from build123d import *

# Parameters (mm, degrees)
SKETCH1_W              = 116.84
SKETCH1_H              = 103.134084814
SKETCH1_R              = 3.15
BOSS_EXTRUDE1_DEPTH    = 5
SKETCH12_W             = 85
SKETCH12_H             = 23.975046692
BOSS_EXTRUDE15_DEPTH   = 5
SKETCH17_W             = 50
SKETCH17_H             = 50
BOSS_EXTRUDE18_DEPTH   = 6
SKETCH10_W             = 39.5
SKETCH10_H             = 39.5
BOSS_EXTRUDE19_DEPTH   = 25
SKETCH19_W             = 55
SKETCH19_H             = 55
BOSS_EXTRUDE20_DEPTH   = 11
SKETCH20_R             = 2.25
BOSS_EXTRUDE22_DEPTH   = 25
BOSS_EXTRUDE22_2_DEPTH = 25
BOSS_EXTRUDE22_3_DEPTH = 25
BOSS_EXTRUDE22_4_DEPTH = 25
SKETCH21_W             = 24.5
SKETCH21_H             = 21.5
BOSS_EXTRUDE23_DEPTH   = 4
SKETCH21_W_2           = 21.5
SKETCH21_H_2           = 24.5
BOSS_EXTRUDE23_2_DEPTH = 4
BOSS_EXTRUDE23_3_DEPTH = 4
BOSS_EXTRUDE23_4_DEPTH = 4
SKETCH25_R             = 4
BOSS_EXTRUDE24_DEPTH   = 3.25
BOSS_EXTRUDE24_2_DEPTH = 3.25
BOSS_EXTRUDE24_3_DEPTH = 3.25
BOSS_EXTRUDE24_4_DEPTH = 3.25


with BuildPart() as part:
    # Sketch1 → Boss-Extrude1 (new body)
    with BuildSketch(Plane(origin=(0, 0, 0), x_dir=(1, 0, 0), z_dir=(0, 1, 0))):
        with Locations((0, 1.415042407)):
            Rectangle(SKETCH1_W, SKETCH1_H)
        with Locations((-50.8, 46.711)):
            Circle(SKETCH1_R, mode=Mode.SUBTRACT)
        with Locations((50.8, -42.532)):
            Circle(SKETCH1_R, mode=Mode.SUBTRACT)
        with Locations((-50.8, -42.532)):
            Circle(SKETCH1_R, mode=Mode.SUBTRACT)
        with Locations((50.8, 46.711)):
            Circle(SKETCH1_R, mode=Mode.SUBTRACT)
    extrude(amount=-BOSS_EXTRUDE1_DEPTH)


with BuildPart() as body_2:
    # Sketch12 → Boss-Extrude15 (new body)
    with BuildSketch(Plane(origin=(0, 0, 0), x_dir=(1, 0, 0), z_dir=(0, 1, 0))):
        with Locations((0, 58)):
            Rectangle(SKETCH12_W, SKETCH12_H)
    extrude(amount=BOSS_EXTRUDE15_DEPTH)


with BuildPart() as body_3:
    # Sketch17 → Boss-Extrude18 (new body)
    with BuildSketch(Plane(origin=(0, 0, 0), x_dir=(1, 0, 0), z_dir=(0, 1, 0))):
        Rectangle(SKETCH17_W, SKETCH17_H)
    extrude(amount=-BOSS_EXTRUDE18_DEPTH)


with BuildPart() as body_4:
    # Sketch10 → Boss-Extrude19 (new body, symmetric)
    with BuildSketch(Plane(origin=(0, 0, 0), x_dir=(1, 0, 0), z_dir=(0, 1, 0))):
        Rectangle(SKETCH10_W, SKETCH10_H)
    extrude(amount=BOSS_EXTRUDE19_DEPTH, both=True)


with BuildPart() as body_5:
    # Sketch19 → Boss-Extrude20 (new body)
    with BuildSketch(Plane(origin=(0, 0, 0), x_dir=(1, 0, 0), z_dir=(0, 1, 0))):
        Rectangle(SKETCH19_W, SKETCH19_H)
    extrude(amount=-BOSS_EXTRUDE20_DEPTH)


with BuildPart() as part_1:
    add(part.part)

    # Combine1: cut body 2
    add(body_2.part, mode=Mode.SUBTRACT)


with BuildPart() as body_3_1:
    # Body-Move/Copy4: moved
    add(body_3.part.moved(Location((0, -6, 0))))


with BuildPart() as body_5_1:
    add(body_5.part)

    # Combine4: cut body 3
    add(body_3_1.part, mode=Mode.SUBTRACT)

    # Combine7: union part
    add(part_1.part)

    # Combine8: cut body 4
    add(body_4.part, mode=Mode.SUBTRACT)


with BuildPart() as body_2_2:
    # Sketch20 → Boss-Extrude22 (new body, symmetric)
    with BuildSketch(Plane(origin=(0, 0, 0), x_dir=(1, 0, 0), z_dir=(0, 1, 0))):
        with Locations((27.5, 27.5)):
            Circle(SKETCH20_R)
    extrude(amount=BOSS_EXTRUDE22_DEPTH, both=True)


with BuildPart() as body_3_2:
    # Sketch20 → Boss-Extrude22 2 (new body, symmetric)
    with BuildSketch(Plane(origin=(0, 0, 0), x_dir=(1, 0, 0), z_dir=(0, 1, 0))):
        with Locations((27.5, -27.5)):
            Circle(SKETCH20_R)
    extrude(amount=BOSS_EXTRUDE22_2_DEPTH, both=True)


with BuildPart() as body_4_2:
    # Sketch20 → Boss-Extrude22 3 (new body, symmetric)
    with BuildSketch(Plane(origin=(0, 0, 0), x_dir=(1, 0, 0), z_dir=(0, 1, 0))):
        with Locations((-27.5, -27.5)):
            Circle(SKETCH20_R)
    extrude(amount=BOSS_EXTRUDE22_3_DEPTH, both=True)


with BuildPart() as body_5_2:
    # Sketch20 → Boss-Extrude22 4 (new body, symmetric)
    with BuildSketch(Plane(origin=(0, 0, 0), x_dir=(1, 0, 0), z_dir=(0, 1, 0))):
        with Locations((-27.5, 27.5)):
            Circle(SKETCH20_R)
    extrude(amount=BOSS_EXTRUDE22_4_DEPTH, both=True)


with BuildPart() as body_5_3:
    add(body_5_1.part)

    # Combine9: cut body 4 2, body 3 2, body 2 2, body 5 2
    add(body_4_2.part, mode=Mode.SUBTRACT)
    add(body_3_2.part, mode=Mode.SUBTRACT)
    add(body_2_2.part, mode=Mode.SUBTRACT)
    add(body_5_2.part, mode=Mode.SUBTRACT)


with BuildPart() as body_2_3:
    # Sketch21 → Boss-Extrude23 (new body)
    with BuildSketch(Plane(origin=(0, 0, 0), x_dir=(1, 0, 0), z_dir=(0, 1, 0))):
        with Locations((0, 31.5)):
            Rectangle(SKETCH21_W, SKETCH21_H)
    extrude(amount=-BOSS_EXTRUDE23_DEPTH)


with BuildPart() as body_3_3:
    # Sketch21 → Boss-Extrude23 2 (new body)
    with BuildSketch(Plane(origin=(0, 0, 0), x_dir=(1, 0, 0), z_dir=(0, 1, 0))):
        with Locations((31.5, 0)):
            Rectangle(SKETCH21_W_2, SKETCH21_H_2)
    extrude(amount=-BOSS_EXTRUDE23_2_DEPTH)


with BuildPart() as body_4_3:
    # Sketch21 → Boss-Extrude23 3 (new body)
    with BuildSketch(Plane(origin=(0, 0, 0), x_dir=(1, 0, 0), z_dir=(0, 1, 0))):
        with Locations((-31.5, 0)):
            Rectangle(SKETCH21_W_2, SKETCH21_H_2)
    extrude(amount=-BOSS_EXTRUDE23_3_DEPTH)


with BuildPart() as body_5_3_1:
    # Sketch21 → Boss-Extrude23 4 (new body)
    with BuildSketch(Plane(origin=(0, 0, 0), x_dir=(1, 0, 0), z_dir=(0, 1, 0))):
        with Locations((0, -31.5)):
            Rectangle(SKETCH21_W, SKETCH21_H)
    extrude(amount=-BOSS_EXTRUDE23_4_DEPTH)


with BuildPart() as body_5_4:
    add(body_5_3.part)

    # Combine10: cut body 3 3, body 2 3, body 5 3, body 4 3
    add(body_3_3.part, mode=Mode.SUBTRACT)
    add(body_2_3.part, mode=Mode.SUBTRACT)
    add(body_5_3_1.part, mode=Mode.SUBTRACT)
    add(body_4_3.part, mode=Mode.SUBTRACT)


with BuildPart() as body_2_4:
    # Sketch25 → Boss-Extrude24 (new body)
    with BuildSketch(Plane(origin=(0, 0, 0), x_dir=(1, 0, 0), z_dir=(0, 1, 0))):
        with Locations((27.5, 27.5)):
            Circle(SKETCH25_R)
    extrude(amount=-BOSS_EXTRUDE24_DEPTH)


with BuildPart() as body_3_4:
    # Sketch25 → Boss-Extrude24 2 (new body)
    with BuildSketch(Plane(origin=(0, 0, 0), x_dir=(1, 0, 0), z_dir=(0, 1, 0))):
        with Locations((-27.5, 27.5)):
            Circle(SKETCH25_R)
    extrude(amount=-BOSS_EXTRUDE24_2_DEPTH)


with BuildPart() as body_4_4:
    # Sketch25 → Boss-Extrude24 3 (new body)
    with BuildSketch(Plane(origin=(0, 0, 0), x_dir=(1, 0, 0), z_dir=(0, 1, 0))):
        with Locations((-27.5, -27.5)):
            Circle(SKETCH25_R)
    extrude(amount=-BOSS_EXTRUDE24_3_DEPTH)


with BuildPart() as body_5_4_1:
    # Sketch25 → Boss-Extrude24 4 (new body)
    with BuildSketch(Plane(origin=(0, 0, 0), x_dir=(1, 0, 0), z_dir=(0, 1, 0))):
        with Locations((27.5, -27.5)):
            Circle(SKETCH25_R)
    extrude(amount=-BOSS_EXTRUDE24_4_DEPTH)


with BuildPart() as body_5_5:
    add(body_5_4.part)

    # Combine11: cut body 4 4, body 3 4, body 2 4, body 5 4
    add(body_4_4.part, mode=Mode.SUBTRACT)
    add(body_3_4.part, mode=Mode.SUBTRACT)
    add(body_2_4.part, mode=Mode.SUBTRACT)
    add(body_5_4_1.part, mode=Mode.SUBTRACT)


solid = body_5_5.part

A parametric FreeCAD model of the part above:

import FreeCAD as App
import Part
import Sketcher
from FreeCAD import Vector


def add_polygon(sketch, points):
    """Adds a closed chain of lines whose ends are joined by coincident constraints."""
    first, n = sketch.GeometryCount, len(points)
    for a, b in zip(points, points[1:] + points[:1]):
        sketch.addGeometry(Part.LineSegment(App.Vector(*a, 0), App.Vector(*b, 0)), False)
    for i in range(n):
        sketch.addConstraint(Sketcher.Constraint("Coincident", first + i, 2, first + (i + 1) % n, 1))

doc = App.newDocument("Part")
body = doc.addObject("PartDesign::Body", "Body")

# Sketch on XZ plane
sketch1 = body.newObject("Sketcher::SketchObject", "Sketch")
sketch1.AttachmentSupport = (doc.getObject("XZ_Plane"), [""])
sketch1.MapMode = "FlatFace"
add_polygon(sketch1, [(-58.4, -53), (-58.4, 50.2), (58.4, 50.2), (58.4, -53)])  # lines 0-3
sketch1.addGeometry(Part.Circle(Vector(-50.8, 42.5, 0), Vector(0, 0, 1), 3.1), False)  # 4
sketch1.addGeometry(Part.Circle(Vector(50.8, 42.5, 0), Vector(0, 0, 1), 3.1), False)  # 5
sketch1.addGeometry(Part.Circle(Vector(-50.8, -46.7, 0), Vector(0, 0, 1), 3.1), False)  # 6
sketch1.addGeometry(Part.Circle(Vector(50.8, -46.7, 0), Vector(0, 0, 1), 3.1), False)  # 7
sketch1.addConstraint(Sketcher.Constraint("Vertical", 0))
sketch1.addConstraint(Sketcher.Constraint("Horizontal", 1))
sketch1.addConstraint(Sketcher.Constraint("Vertical", 2))
sketch1.addConstraint(Sketcher.Constraint("Horizontal", 3))
sketch1.addConstraint(Sketcher.Constraint("Equal", 4, 5))
sketch1.addConstraint(Sketcher.Constraint("Equal", 5, 6))
sketch1.addConstraint(Sketcher.Constraint("Equal", 6, 7))
sketch1.addConstraint(Sketcher.Constraint("Symmetric", 4, 3, 5, 3, -2))
sketch1.addConstraint(Sketcher.Constraint("Symmetric", 6, 3, 7, 3, -2))
sketch1.addConstraint(Sketcher.Constraint("Vertical", 4, 3, 6, 3))
sketch1.addConstraint(Sketcher.Constraint("Diameter", 4, 6.3))
sketch1.addConstraint(Sketcher.Constraint("DistanceX", 1, 1, 1, 2, 116.84))
sketch1.addConstraint(Sketcher.Constraint("DistanceX", 4, 3, -1, 1, 50.8))
sketch1.addConstraint(Sketcher.Constraint("DistanceX", 0, 2, -1, 1, 58.42))
sketch1.addConstraint(Sketcher.Constraint("DistanceY", 4, 3, 0, 2, 7.62))
sketch1.addConstraint(Sketcher.Constraint("DistanceY", -1, 1, 4, 3, 42.532))
sketch1.addConstraint(Sketcher.Constraint("DistanceY", 6, 3, -1, 1, 46.711))
sketch1.addConstraint(Sketcher.Constraint("DistanceY", 0, 1, 0, 2, 103.134085))
pad1 = body.newObject("PartDesign::Pad", "Pad")
pad1.Profile = sketch1
pad1.Length = 5
body2 = doc.addObject("PartDesign::Body", "Body001")

# Sketch on XZ plane
sketch2 = body2.newObject("Sketcher::SketchObject", "Sketch001")
sketch2.AttachmentSupport = (doc.getObject("XZ_Plane001"), [""])
sketch2.MapMode = "FlatFace"
add_polygon(sketch2, [(-42, -70), (-42, -46), (42, -46), (42, -70)])  # lines 0-3
sketch2.addConstraint(Sketcher.Constraint("Vertical", 0))
sketch2.addConstraint(Sketcher.Constraint("Horizontal", 1))
sketch2.addConstraint(Sketcher.Constraint("Vertical", 2))
sketch2.addConstraint(Sketcher.Constraint("Horizontal", 3))
sketch2.addConstraint(Sketcher.Constraint("DistanceX", 1, 1, 1, 2, 85.0))
sketch2.addConstraint(Sketcher.Constraint("DistanceX", 0, 2, -1, 1, 42.5))
sketch2.addConstraint(Sketcher.Constraint("DistanceY", 0, 1, 0, 2, 23.975047))
sketch2.addConstraint(Sketcher.Constraint("DistanceY", 0, 2, -1, 1, 46.012477))
pad2 = body2.newObject("PartDesign::Pad", "Pad001")
pad2.Profile = sketch2
pad2.Length = 5
pad2.Reversed = True
body3 = doc.addObject("PartDesign::Body", "Body002")

# Sketch on XZ plane
sketch3 = body3.newObject("Sketcher::SketchObject", "Sketch002")
sketch3.AttachmentSupport = (doc.getObject("XZ_Plane002"), [""])
sketch3.MapMode = "FlatFace"
add_polygon(sketch3, [(-25, -25), (-25, 25), (25, 25), (25, -25)])  # lines 0-3
sketch3.addConstraint(Sketcher.Constraint("Vertical", 0))
sketch3.addConstraint(Sketcher.Constraint("Horizontal", 1))
sketch3.addConstraint(Sketcher.Constraint("Vertical", 2))
sketch3.addConstraint(Sketcher.Constraint("Horizontal", 3))
sketch3.addConstraint(Sketcher.Constraint("Symmetric", 0, 2, 2, 2, -1, 1))
sketch3.addConstraint(Sketcher.Constraint("Equal", 3, 0))
sketch3.addConstraint(Sketcher.Constraint("DistanceX", 1, 1, 1, 2, 50.0))
pad3 = body3.newObject("PartDesign::Pad", "Pad002")
pad3.Profile = sketch3
pad3.Length = 6
body4 = doc.addObject("PartDesign::Body", "Body003")

# Sketch on XZ plane
sketch4 = body4.newObject("Sketcher::SketchObject", "Sketch003")
sketch4.AttachmentSupport = (doc.getObject("XZ_Plane003"), [""])
sketch4.MapMode = "FlatFace"
add_polygon(sketch4, [(-20, -20), (-20, 20), (20, 20), (20, -20)])  # lines 0-3
sketch4.addConstraint(Sketcher.Constraint("Vertical", 0))
sketch4.addConstraint(Sketcher.Constraint("Horizontal", 1))
sketch4.addConstraint(Sketcher.Constraint("Vertical", 2))
sketch4.addConstraint(Sketcher.Constraint("Horizontal", 3))
sketch4.addConstraint(Sketcher.Constraint("Symmetric", 0, 2, 2, 2, -1, 1))
sketch4.addConstraint(Sketcher.Constraint("Equal", 3, 0))
sketch4.addConstraint(Sketcher.Constraint("DistanceX", 1, 1, 1, 2, 39.5))
pad4 = body4.newObject("PartDesign::Pad", "Pad003")
pad4.Profile = sketch4
pad4.Length = 50
pad4.Midplane = True
body5 = doc.addObject("PartDesign::Body", "Body004")

# Sketch on XZ plane
sketch5 = body5.newObject("Sketcher::SketchObject", "Sketch004")
sketch5.AttachmentSupport = (doc.getObject("XZ_Plane004"), [""])
sketch5.MapMode = "FlatFace"
add_polygon(sketch5, [(-28, -28), (-28, 28), (28, 28), (28, -28)])  # lines 0-3
sketch5.addConstraint(Sketcher.Constraint("Vertical", 0))
sketch5.addConstraint(Sketcher.Constraint("Horizontal", 1))
sketch5.addConstraint(Sketcher.Constraint("Vertical", 2))
sketch5.addConstraint(Sketcher.Constraint("Horizontal", 3))
sketch5.addConstraint(Sketcher.Constraint("Symmetric", 0, 2, 2, 2, -1, 1))
sketch5.addConstraint(Sketcher.Constraint("Equal", 3, 0))
sketch5.addConstraint(Sketcher.Constraint("DistanceX", 1, 1, 1, 2, 55.0))
pad5 = body5.newObject("PartDesign::Pad", "Pad004")
pad5.Profile = sketch5
pad5.Length = 11
doc.recompute()

boolean = body.newObject("PartDesign::Boolean", "Boolean")
boolean.Type = "Cut"
boolean.addObjects([body2])
body6 = doc.addObject("PartDesign::Body", "Body005")
doc.recompute()

body3.Placement = App.Placement(Vector(0, -6, 0), App.Rotation(Vector(0, 0, 1), 0))
boolean2 = body6.newObject("PartDesign::Boolean", "Boolean001")
boolean2.Type = "Fuse"
boolean2.addObjects([body3])
doc.recompute()

boolean3 = body5.newObject("PartDesign::Boolean", "Boolean002")
boolean3.Type = "Cut"
boolean3.addObjects([body6])
doc.recompute()

boolean4 = body5.newObject("PartDesign::Boolean", "Boolean003")
boolean4.Type = "Fuse"
boolean4.addObjects([body])
doc.recompute()

boolean5 = body5.newObject("PartDesign::Boolean", "Boolean004")
boolean5.Type = "Cut"
boolean5.addObjects([body4])
body7 = doc.addObject("PartDesign::Body", "Body006")

# Sketch on XZ plane
sketch6 = body7.newObject("Sketcher::SketchObject", "Sketch005")
sketch6.AttachmentSupport = (doc.getObject("XZ_Plane006"), [""])
sketch6.MapMode = "FlatFace"
sketch6.addGeometry(Part.Circle(Vector(27.5, -27.5, 0), Vector(0, 0, 1), 2.2), False)
sketch6.addConstraint(Sketcher.Constraint("Diameter", 0, 4.5))
sketch6.addConstraint(Sketcher.Constraint("DistanceX", -1, 1, 0, 3, 27.5))
sketch6.addConstraint(Sketcher.Constraint("DistanceY", 0, 3, -1, 1, 27.5))
pad6 = body7.newObject("PartDesign::Pad", "Pad005")
pad6.Profile = sketch6
pad6.Length = 50
pad6.Midplane = True
body8 = doc.addObject("PartDesign::Body", "Body007")

# Sketch on XZ plane
sketch7 = body8.newObject("Sketcher::SketchObject", "Sketch006")
sketch7.AttachmentSupport = (doc.getObject("XZ_Plane007"), [""])
sketch7.MapMode = "FlatFace"
sketch7.addGeometry(Part.Circle(Vector(27.5, 27.5, 0), Vector(0, 0, 1), 2.2), False)
sketch7.addConstraint(Sketcher.Constraint("Diameter", 0, 4.5))
sketch7.addConstraint(Sketcher.Constraint("DistanceX", -1, 1, 0, 3, 27.5))
sketch7.addConstraint(Sketcher.Constraint("DistanceY", -1, 1, 0, 3, 27.5))
pad7 = body8.newObject("PartDesign::Pad", "Pad006")
pad7.Profile = sketch7
pad7.Length = 50
pad7.Midplane = True
body9 = doc.addObject("PartDesign::Body", "Body008")

# Sketch on XZ plane
sketch8 = body9.newObject("Sketcher::SketchObject", "Sketch007")
sketch8.AttachmentSupport = (doc.getObject("XZ_Plane008"), [""])
sketch8.MapMode = "FlatFace"
sketch8.addGeometry(Part.Circle(Vector(-27.5, 27.5, 0), Vector(0, 0, 1), 2.2), False)
sketch8.addConstraint(Sketcher.Constraint("Diameter", 0, 4.5))
sketch8.addConstraint(Sketcher.Constraint("DistanceX", 0, 3, -1, 1, 27.5))
sketch8.addConstraint(Sketcher.Constraint("DistanceY", -1, 1, 0, 3, 27.5))
pad8 = body9.newObject("PartDesign::Pad", "Pad007")
pad8.Profile = sketch8
pad8.Length = 50
pad8.Midplane = True
body10 = doc.addObject("PartDesign::Body", "Body009")

# Sketch on XZ plane
sketch9 = body10.newObject("Sketcher::SketchObject", "Sketch008")
sketch9.AttachmentSupport = (doc.getObject("XZ_Plane009"), [""])
sketch9.MapMode = "FlatFace"
sketch9.addGeometry(Part.Circle(Vector(-27.5, -27.5, 0), Vector(0, 0, 1), 2.2), False)
sketch9.addConstraint(Sketcher.Constraint("Diameter", 0, 4.5))
sketch9.addConstraint(Sketcher.Constraint("DistanceX", 0, 3, -1, 1, 27.5))
sketch9.addConstraint(Sketcher.Constraint("DistanceY", 0, 3, -1, 1, 27.5))
pad9 = body10.newObject("PartDesign::Pad", "Pad008")
pad9.Profile = sketch9
pad9.Length = 50
pad9.Midplane = True
doc.recompute()

boolean6 = body5.newObject("PartDesign::Boolean", "Boolean005")
boolean6.Type = "Cut"
boolean6.addObjects([body9])
doc.recompute()

boolean7 = body5.newObject("PartDesign::Boolean", "Boolean006")
boolean7.Type = "Cut"
boolean7.addObjects([body8])
doc.recompute()

boolean8 = body5.newObject("PartDesign::Boolean", "Boolean007")
boolean8.Type = "Cut"
boolean8.addObjects([body7])
doc.recompute()

boolean9 = body5.newObject("PartDesign::Boolean", "Boolean008")
boolean9.Type = "Cut"
boolean9.addObjects([body10])
body11 = doc.addObject("PartDesign::Body", "Body010")

# Sketch on XZ plane
sketch10 = body11.newObject("Sketcher::SketchObject", "Sketch009")
sketch10.AttachmentSupport = (doc.getObject("XZ_Plane010"), [""])
sketch10.MapMode = "FlatFace"
add_polygon(sketch10, [(-12, -42), (-12, -21), (12, -21), (12, -42)])  # lines 0-3
sketch10.addConstraint(Sketcher.Constraint("Vertical", 0))
sketch10.addConstraint(Sketcher.Constraint("Horizontal", 1))
sketch10.addConstraint(Sketcher.Constraint("Vertical", 2))
sketch10.addConstraint(Sketcher.Constraint("Horizontal", 3))
sketch10.addConstraint(Sketcher.Constraint("DistanceX", 1, 1, 1, 2, 24.5))
sketch10.addConstraint(Sketcher.Constraint("DistanceY", 0, 1, 0, 2, 21.5))
sketch10.addConstraint(Sketcher.Constraint("DistanceX", 0, 2, -1, 1, 12.25))
sketch10.addConstraint(Sketcher.Constraint("DistanceY", 0, 2, -1, 1, 20.75))
pad10 = body11.newObject("PartDesign::Pad", "Pad009")
pad10.Profile = sketch10
pad10.Length = 4
body12 = doc.addObject("PartDesign::Body", "Body011")

# Sketch on XZ plane
sketch11 = body12.newObject("Sketcher::SketchObject", "Sketch010")
sketch11.AttachmentSupport = (doc.getObject("XZ_Plane011"), [""])
sketch11.MapMode = "FlatFace"
add_polygon(sketch11, [(21, -12), (21, 12), (42, 12), (42, -12)])  # lines 0-3
sketch11.addConstraint(Sketcher.Constraint("Vertical", 0))
sketch11.addConstraint(Sketcher.Constraint("Horizontal", 1))
sketch11.addConstraint(Sketcher.Constraint("Vertical", 2))
sketch11.addConstraint(Sketcher.Constraint("Horizontal", 3))
sketch11.addConstraint(Sketcher.Constraint("DistanceX", 1, 1, 1, 2, 21.5))
sketch11.addConstraint(Sketcher.Constraint("DistanceY", 0, 1, 0, 2, 24.5))
sketch11.addConstraint(Sketcher.Constraint("DistanceX", -1, 1, 0, 2, 20.75))
sketch11.addConstraint(Sketcher.Constraint("DistanceY", -1, 1, 0, 2, 12.25))
pad11 = body12.newObject("PartDesign::Pad", "Pad010")
pad11.Profile = sketch11
pad11.Length = 4
body13 = doc.addObject("PartDesign::Body", "Body012")

# Sketch on XZ plane
sketch12 = body13.newObject("Sketcher::SketchObject", "Sketch011")
sketch12.AttachmentSupport = (doc.getObject("XZ_Plane012"), [""])
sketch12.MapMode = "FlatFace"
add_polygon(sketch12, [(-42, -12), (-42, 12), (-21, 12), (-21, -12)])  # lines 0-3
sketch12.addConstraint(Sketcher.Constraint("Vertical", 0))
sketch12.addConstraint(Sketcher.Constraint("Horizontal", 1))
sketch12.addConstraint(Sketcher.Constraint("Vertical", 2))
sketch12.addConstraint(Sketcher.Constraint("Horizontal", 3))
sketch12.addConstraint(Sketcher.Constraint("DistanceX", 1, 1, 1, 2, 21.5))
sketch12.addConstraint(Sketcher.Constraint("DistanceY", 0, 1, 0, 2, 24.5))
sketch12.addConstraint(Sketcher.Constraint("DistanceX", 0, 2, -1, 1, 42.25))
sketch12.addConstraint(Sketcher.Constraint("DistanceY", -1, 1, 0, 2, 12.25))
pad12 = body13.newObject("PartDesign::Pad", "Pad011")
pad12.Profile = sketch12
pad12.Length = 4
body14 = doc.addObject("PartDesign::Body", "Body013")

# Sketch on XZ plane
sketch13 = body14.newObject("Sketcher::SketchObject", "Sketch012")
sketch13.AttachmentSupport = (doc.getObject("XZ_Plane013"), [""])
sketch13.MapMode = "FlatFace"
add_polygon(sketch13, [(-12, 21), (-12, 42), (12, 42), (12, 21)])  # lines 0-3
sketch13.addConstraint(Sketcher.Constraint("Vertical", 0))
sketch13.addConstraint(Sketcher.Constraint("Horizontal", 1))
sketch13.addConstraint(Sketcher.Constraint("Vertical", 2))
sketch13.addConstraint(Sketcher.Constraint("Horizontal", 3))
sketch13.addConstraint(Sketcher.Constraint("DistanceX", 1, 1, 1, 2, 24.5))
sketch13.addConstraint(Sketcher.Constraint("DistanceY", 0, 1, 0, 2, 21.5))
sketch13.addConstraint(Sketcher.Constraint("DistanceX", 0, 2, -1, 1, 12.25))
sketch13.addConstraint(Sketcher.Constraint("DistanceY", -1, 1, 0, 2, 42.25))
pad13 = body14.newObject("PartDesign::Pad", "Pad012")
pad13.Profile = sketch13
pad13.Length = 4
doc.recompute()

boolean10 = body5.newObject("PartDesign::Boolean", "Boolean009")
boolean10.Type = "Cut"
boolean10.addObjects([body12])
doc.recompute()

boolean11 = body5.newObject("PartDesign::Boolean", "Boolean010")
boolean11.Type = "Cut"
boolean11.addObjects([body11])
doc.recompute()

boolean12 = body5.newObject("PartDesign::Boolean", "Boolean011")
boolean12.Type = "Cut"
boolean12.addObjects([body14])
doc.recompute()

boolean13 = body5.newObject("PartDesign::Boolean", "Boolean012")
boolean13.Type = "Cut"
boolean13.addObjects([body13])
body15 = doc.addObject("PartDesign::Body", "Body014")

# Sketch on XZ plane
sketch14 = body15.newObject("Sketcher::SketchObject", "Sketch013")
sketch14.AttachmentSupport = (doc.getObject("XZ_Plane014"), [""])
sketch14.MapMode = "FlatFace"
sketch14.addGeometry(Part.Circle(Vector(27.5, -27.5, 0), Vector(0, 0, 1), 4), False)
sketch14.addConstraint(Sketcher.Constraint("Diameter", 0, 8.0))
sketch14.addConstraint(Sketcher.Constraint("DistanceX", -1, 1, 0, 3, 27.5))
sketch14.addConstraint(Sketcher.Constraint("DistanceY", 0, 3, -1, 1, 27.5))
pad14 = body15.newObject("PartDesign::Pad", "Pad013")
pad14.Profile = sketch14
pad14.Length = 3.25
body16 = doc.addObject("PartDesign::Body", "Body015")

# Sketch on XZ plane
sketch15 = body16.newObject("Sketcher::SketchObject", "Sketch014")
sketch15.AttachmentSupport = (doc.getObject("XZ_Plane015"), [""])
sketch15.MapMode = "FlatFace"
sketch15.addGeometry(Part.Circle(Vector(-27.5, -27.5, 0), Vector(0, 0, 1), 4), False)
sketch15.addConstraint(Sketcher.Constraint("Diameter", 0, 8.0))
sketch15.addConstraint(Sketcher.Constraint("DistanceX", 0, 3, -1, 1, 27.5))
sketch15.addConstraint(Sketcher.Constraint("DistanceY", 0, 3, -1, 1, 27.5))
pad15 = body16.newObject("PartDesign::Pad", "Pad014")
pad15.Profile = sketch15
pad15.Length = 3.25
body17 = doc.addObject("PartDesign::Body", "Body016")

# Sketch on XZ plane
sketch16 = body17.newObject("Sketcher::SketchObject", "Sketch015")
sketch16.AttachmentSupport = (doc.getObject("XZ_Plane016"), [""])
sketch16.MapMode = "FlatFace"
sketch16.addGeometry(Part.Circle(Vector(-27.5, 27.5, 0), Vector(0, 0, 1), 4), False)
sketch16.addConstraint(Sketcher.Constraint("Diameter", 0, 8.0))
sketch16.addConstraint(Sketcher.Constraint("DistanceX", 0, 3, -1, 1, 27.5))
sketch16.addConstraint(Sketcher.Constraint("DistanceY", -1, 1, 0, 3, 27.5))
pad16 = body17.newObject("PartDesign::Pad", "Pad015")
pad16.Profile = sketch16
pad16.Length = 3.25
body18 = doc.addObject("PartDesign::Body", "Body017")

# Sketch on XZ plane
sketch17 = body18.newObject("Sketcher::SketchObject", "Sketch016")
sketch17.AttachmentSupport = (doc.getObject("XZ_Plane017"), [""])
sketch17.MapMode = "FlatFace"
sketch17.addGeometry(Part.Circle(Vector(27.5, 27.5, 0), Vector(0, 0, 1), 4), False)
sketch17.addConstraint(Sketcher.Constraint("Diameter", 0, 8.0))
sketch17.addConstraint(Sketcher.Constraint("DistanceX", -1, 1, 0, 3, 27.5))
sketch17.addConstraint(Sketcher.Constraint("DistanceY", -1, 1, 0, 3, 27.5))
pad17 = body18.newObject("PartDesign::Pad", "Pad016")
pad17.Profile = sketch17
pad17.Length = 3.25
doc.recompute()

boolean14 = body5.newObject("PartDesign::Boolean", "Boolean013")
boolean14.Type = "Cut"
boolean14.addObjects([body17])
doc.recompute()

boolean15 = body5.newObject("PartDesign::Boolean", "Boolean014")
boolean15.Type = "Cut"
boolean15.addObjects([body16])
doc.recompute()

boolean16 = body5.newObject("PartDesign::Boolean", "Boolean015")
boolean16.Type = "Cut"
boolean16.addObjects([body15])
doc.recompute()

boolean17 = body5.newObject("PartDesign::Boolean", "Boolean016")
boolean17.Type = "Cut"
boolean17.addObjects([body18])

doc.recompute()
